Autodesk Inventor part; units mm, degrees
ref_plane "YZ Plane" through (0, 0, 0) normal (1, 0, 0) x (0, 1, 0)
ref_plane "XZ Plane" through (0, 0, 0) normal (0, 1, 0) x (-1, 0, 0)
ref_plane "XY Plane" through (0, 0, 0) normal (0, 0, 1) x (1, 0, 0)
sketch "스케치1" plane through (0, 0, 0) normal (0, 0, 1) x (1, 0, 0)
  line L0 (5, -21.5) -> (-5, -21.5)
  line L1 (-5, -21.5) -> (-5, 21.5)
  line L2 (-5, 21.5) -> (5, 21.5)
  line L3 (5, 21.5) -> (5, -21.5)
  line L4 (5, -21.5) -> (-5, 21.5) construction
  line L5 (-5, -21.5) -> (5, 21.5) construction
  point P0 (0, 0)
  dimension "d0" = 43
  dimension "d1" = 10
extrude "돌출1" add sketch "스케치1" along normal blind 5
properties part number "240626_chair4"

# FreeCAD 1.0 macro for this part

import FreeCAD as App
import Part
import Sketcher

V = App.Vector
Q = App.Units.Quantity


def add_polygon(sketch, points):
    """Adds a closed chain of lines whose ends are joined by coincident constraints."""
    first, n = sketch.GeometryCount, len(points)
    for a, b in zip(points, points[1:] + points[:1]):
        sketch.addGeometry(Part.LineSegment(App.Vector(*a, 0), App.Vector(*b, 0)), False)
    for i in range(n):
        sketch.addConstraint(Sketcher.Constraint("Coincident", first + i, 2, first + (i + 1) % n, 1))

doc = App.newDocument("Part")
body = doc.addObject("PartDesign::Body", "Body")

# Sketch on XY plane
sketch1 = body.newObject("Sketcher::SketchObject", "Sketch")
sketch1.AttachmentSupport = (doc.getObject("XY_Plane"), [""])
sketch1.MapMode = "FlatFace"
add_polygon(sketch1, [(-5, -21.5), (5, -21.5), (5, 21.5), (-5, 21.5)])  # lines 0-3
sketch1.addConstraint(Sketcher.Constraint("Horizontal", 0))
sketch1.addConstraint(Sketcher.Constraint("Vertical", 1))
sketch1.addConstraint(Sketcher.Constraint("Horizontal", 2))
sketch1.addConstraint(Sketcher.Constraint("Vertical", 3))
sketch1.addConstraint(Sketcher.Constraint("Symmetric", 0, 2, 2, 2, -1, 1))
sketch1.addConstraint(Sketcher.Constraint("DistanceX", 0, 1, 0, 2, Q("10 mm")))
sketch1.addConstraint(Sketcher.Constraint("DistanceY", 1, 1, 1, 2, Q("43 mm")))
pad1 = body.newObject("PartDesign::Pad", "Pad")
pad1.Profile = sketch1
pad1.Length = 5

doc.recompute()
